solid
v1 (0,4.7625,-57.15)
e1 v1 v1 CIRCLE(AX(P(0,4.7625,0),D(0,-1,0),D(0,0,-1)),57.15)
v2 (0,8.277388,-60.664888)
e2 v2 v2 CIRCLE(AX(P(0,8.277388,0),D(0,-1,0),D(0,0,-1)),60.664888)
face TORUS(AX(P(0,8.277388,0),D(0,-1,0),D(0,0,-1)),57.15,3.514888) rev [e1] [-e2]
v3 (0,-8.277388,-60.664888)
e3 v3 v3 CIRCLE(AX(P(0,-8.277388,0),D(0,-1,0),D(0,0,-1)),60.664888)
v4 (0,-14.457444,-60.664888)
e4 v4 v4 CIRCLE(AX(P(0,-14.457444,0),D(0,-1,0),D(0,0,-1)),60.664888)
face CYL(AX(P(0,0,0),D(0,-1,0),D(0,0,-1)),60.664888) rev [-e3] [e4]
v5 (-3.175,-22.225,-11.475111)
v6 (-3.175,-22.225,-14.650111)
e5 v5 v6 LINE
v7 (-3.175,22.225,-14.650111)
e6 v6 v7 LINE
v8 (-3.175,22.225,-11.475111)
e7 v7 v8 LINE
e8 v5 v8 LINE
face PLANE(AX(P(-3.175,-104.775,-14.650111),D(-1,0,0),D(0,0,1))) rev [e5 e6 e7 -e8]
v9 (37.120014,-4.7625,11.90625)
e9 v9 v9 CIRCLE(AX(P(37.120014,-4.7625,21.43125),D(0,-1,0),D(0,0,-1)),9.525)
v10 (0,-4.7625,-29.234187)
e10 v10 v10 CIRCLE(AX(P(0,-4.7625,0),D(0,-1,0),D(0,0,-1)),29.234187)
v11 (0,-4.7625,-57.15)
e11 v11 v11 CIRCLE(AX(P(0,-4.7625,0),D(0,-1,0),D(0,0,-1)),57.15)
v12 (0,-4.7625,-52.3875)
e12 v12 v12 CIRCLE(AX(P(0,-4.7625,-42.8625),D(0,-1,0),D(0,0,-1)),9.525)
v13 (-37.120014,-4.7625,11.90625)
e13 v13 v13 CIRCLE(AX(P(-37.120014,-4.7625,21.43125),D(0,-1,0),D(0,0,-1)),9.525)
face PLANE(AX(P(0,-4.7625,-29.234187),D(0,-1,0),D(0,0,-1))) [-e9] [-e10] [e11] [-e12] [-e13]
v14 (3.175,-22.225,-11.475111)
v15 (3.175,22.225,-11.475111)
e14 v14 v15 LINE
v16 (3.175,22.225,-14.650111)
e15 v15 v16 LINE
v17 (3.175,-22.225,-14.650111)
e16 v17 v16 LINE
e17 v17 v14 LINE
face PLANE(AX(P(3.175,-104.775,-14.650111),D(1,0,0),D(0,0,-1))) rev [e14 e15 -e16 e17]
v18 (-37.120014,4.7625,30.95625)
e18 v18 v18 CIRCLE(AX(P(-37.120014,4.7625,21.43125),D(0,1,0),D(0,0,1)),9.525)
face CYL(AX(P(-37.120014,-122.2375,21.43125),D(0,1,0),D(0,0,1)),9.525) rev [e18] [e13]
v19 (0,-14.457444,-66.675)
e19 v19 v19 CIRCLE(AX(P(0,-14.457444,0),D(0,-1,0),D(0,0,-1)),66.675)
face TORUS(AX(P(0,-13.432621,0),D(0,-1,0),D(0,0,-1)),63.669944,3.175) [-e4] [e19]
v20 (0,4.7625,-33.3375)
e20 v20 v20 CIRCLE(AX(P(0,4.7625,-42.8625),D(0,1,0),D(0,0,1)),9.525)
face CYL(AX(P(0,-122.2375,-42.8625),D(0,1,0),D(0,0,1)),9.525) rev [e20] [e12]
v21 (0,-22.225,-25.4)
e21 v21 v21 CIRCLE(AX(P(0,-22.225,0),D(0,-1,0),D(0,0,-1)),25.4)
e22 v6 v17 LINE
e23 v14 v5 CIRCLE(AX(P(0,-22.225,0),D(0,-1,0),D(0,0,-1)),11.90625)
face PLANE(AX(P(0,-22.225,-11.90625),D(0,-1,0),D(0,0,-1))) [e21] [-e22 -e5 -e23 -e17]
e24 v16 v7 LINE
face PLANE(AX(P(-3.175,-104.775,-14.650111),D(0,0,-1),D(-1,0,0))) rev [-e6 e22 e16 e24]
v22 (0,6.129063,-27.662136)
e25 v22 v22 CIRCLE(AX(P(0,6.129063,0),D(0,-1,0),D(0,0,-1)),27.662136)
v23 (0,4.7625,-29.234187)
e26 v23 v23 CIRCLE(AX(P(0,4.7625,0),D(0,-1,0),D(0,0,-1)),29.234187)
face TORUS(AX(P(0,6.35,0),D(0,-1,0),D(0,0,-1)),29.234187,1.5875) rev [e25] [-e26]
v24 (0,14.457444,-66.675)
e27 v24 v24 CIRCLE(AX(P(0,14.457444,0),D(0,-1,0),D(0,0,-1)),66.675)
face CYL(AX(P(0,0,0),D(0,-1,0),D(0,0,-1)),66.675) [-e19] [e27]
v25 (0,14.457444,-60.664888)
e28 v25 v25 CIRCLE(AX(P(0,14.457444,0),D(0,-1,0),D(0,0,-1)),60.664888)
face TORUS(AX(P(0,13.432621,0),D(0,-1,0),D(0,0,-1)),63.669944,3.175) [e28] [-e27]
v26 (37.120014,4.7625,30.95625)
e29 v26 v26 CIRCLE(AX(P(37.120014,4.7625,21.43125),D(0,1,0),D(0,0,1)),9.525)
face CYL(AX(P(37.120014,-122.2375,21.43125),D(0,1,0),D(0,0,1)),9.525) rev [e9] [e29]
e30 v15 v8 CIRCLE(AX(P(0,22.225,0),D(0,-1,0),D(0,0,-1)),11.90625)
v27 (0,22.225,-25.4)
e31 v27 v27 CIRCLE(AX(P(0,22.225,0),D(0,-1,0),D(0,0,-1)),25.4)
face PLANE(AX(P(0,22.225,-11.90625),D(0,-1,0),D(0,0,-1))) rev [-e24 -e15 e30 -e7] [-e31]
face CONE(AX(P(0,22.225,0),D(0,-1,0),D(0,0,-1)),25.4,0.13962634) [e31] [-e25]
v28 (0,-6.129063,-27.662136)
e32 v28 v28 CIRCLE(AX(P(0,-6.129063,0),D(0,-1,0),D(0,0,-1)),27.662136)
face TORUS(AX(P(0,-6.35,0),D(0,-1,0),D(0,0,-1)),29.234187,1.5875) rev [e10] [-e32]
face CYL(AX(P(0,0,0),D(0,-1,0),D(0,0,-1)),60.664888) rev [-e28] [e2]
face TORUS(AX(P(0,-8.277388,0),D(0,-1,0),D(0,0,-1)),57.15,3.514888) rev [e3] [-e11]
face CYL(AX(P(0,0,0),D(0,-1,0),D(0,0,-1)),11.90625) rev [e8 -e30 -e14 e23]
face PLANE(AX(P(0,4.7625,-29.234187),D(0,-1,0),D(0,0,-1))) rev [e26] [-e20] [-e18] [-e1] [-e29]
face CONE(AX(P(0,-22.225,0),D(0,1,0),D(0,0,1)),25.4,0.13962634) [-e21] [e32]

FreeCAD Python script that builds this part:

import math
import FreeCAD as App
import Part
import Sketcher
from FreeCAD import Vector
Q = App.Units.Quantity

doc = App.newDocument("Part")
body = doc.addObject("PartDesign::Body", "Body")

# Sketch on YZ plane
sketch1 = doc.addObject("Sketcher::SketchObject", "Sketch")
body.addObject(sketch1)
sketch1.AttachmentSupport = (doc.YZ_Plane, [""])
sketch1.MapMode = "FlatFace"
sketch1.addGeometry(Part.LineSegment(Vector(22.225, -11.90625, 0), Vector(-22.225, -11.90625, 0)), False)
sketch1.addGeometry(Part.LineSegment(Vector(-22.225, -11.90625, 0), Vector(-22.225, -25.4, 0)), False)
sketch1.addGeometry(Part.LineSegment(Vector(-22.225, -25.4, 0), Vector(-6.129063, -27.662136, 0)), False)
sketch1.addGeometry(Part.ArcOfCircle(Part.Circle(Vector(-6.35, -29.234187, 0), Vector(0, 0, 1), 1.5875), math.radians(0), math.radians(82)), False)
sketch1.addGeometry(Part.LineSegment(Vector(-4.7625, -29.234187, 0), Vector(-4.7625, -57.15, 0)), False)
sketch1.addGeometry(Part.ArcOfCircle(Part.Circle(Vector(-8.277388, -57.15, 0), Vector(0, 0, 1), 3.514888), math.radians(-90), math.radians(0)), False)
sketch1.addGeometry(Part.LineSegment(Vector(-8.277388, -60.664888, 0), Vector(-14.457444, -60.664888, 0)), False)
sketch1.addGeometry(Part.ArcOfCircle(Part.Circle(Vector(-13.432621, -63.669944, 0), Vector(0, 0, 1), 3.175), math.radians(108.831068), math.radians(251.168932)), False)
sketch1.addGeometry(Part.LineSegment(Vector(-14.457444, -66.675, 0), Vector(14.457444, -66.675, 0)), False)
sketch1.addGeometry(Part.ArcOfCircle(Part.Circle(Vector(13.432621, -63.669944, 0), Vector(0, 0, 1), 3.175), math.radians(-71.168932), math.radians(71.168932)), False)
sketch1.addGeometry(Part.LineSegment(Vector(14.457444, -60.664888, 0), Vector(8.277388, -60.664888, 0)), False)
sketch1.addGeometry(Part.ArcOfCircle(Part.Circle(Vector(8.277388, -57.15, 0), Vector(0, 0, 1), 3.514888), math.radians(180), math.radians(270)), False)
sketch1.addGeometry(Part.LineSegment(Vector(4.7625, -57.15, 0), Vector(4.7625, -29.234187, 0)), False)
sketch1.addGeometry(Part.ArcOfCircle(Part.Circle(Vector(6.35, -29.234187, 0), Vector(0, 0, 1), 1.5875), math.radians(98), math.radians(180)), False)
sketch1.addGeometry(Part.LineSegment(Vector(6.129063, -27.662136, 0), Vector(22.225, -25.4, 0)), False)
sketch1.addGeometry(Part.LineSegment(Vector(22.225, -25.4, 0), Vector(22.225, -11.90625, 0)), False)
sketch1.addConstraint(Sketcher.Constraint("Coincident", 0, 2, 1, 1))
sketch1.addConstraint(Sketcher.Constraint("Coincident", 1, 2, 2, 1))
sketch1.addConstraint(Sketcher.Constraint("Tangent", 2, 2, 3, 2))
sketch1.addConstraint(Sketcher.Constraint("Tangent", 3, 1, 4, 1))
sketch1.addConstraint(Sketcher.Constraint("Tangent", 4, 2, 5, 2))
sketch1.addConstraint(Sketcher.Constraint("Tangent", 5, 1, 6, 1))
sketch1.addConstraint(Sketcher.Constraint("Coincident", 6, 2, 7, 1))
sketch1.addConstraint(Sketcher.Constraint("Coincident", 7, 2, 8, 1))
sketch1.addConstraint(Sketcher.Constraint("Coincident", 8, 2, 9, 1))
sketch1.addConstraint(Sketcher.Constraint("Coincident", 9, 2, 10, 1))
sketch1.addConstraint(Sketcher.Constraint("Tangent", 10, 2, 11, 2))
sketch1.addConstraint(Sketcher.Constraint("Tangent", 11, 1, 12, 1))
sketch1.addConstraint(Sketcher.Constraint("Tangent", 12, 2, 13, 2))
sketch1.addConstraint(Sketcher.Constraint("Tangent", 13, 1, 14, 1))
sketch1.addConstraint(Sketcher.Constraint("Coincident", 14, 2, 15, 1))
sketch1.addConstraint(Sketcher.Constraint("Coincident", 15, 2, 0, 1))
sketch1.addConstraint(Sketcher.Constraint("Horizontal", 0))
sketch1.addConstraint(Sketcher.Constraint("Vertical", 1))
sketch1.addConstraint(Sketcher.Constraint("Vertical", 4))
sketch1.addConstraint(Sketcher.Constraint("Horizontal", 6))
sketch1.addConstraint(Sketcher.Constraint("Horizontal", 8))
sketch1.addConstraint(Sketcher.Constraint("Horizontal", 10))
sketch1.addConstraint(Sketcher.Constraint("Vertical", 12))
sketch1.addConstraint(Sketcher.Constraint("Vertical", 15))
sketch1.addConstraint(Sketcher.Constraint("Equal", 7, 9))
sketch1.addConstraint(Sketcher.Constraint("Equal", 5, 11))
sketch1.addConstraint(Sketcher.Constraint("Equal", 3, 13))
sketch1.addConstraint(Sketcher.Constraint("Symmetric", 7, 3, 9, 3, -2))
sketch1.addConstraint(Sketcher.Constraint("Symmetric", 5, 3, 11, 3, -2))
sketch1.addConstraint(Sketcher.Constraint("Symmetric", 2, 2, 13, 1, -2))
sketch1.addConstraint(Sketcher.Constraint("Horizontal", 1, 2, 14, 2))
sketch1.addConstraint(Sketcher.Constraint("Vertical", 6, 2, 7, 2))
sketch1.addConstraint(Sketcher.Constraint("DistanceY", 1, 2, -1, 1, Q("1 in")))
sketch1.addConstraint(Sketcher.Constraint("Angle", 2, Q("-8 deg")))
sketch1.addConstraint(Sketcher.Constraint("Radius", 3, Q("0.0625 in")))
sketch1.addConstraint(Sketcher.Constraint("Radius", 7, Q("0.125 in")))
sketch1.addConstraint(Sketcher.Constraint("DistanceX", 0, 2, 0, 1, Q("1.75 in")))
sketch1.addConstraint(Sketcher.Constraint("DistanceX", 3, 3, 13, 3, Q("0.5 in")))
sketch1.addConstraint(Sketcher.Constraint("DistanceY", 1, 2, 1, 1, Q("0.53125 in")))
sketch1.addConstraint(Sketcher.Constraint("DistanceY", 5, 3, -1, 1, Q("2.25 in")))
sketch1.addConstraint(Sketcher.Constraint("DistanceY", 7, 2, -1, 1, Q("2.625 in")))
sketch1.addConstraint(Sketcher.Constraint("Radius", 5, Q("3.514888 mm")))
sketch1.addConstraint(Sketcher.Constraint("DistanceX", 6, 2, 6, 1, Q("6.180056 mm")))
revolution = doc.addObject("PartDesign::Revolution", "Revolution")
body.addObject(revolution)
revolution.Profile = sketch1
revolution.ReferenceAxis = (sketch1, ["H_Axis"])
revolution.Angle = 360

# Sketch on XZ plane
sketch2 = doc.addObject("Sketcher::SketchObject", "Sketch001")
body.addObject(sketch2)
sketch2.AttachmentSupport = (doc.XZ_Plane, [""])
sketch2.MapMode = "FlatFace"
sketch2.AttachmentOffset = App.Placement(Vector(0, 0, -0.875 * 25.4), App.Rotation())
sketch2.addGeometry(Part.LineSegment(Vector(3.175, -14.650111, 0), Vector(-3.175, -14.650111, 0)), False)
sketch2.addGeometry(Part.LineSegment(Vector(-3.175, -14.650111, 0), Vector(-3.175, -11.475111, 0)), False)
sketch2.addGeometry(Part.ArcOfCircle(Part.Circle(Vector(0, 0, 0), Vector(0, 0, 1), 11.90625), math.radians(-105.46601), math.radians(-74.53399)), False)
sketch2.addGeometry(Part.LineSegment(Vector(3.175, -11.475111, 0), Vector(3.175, -14.650111, 0)), False)
sketch2.addConstraint(Sketcher.Constraint("Coincident", 0, 2, 1, 1))
sketch2.addConstraint(Sketcher.Constraint("Coincident", 1, 2, 2, 1))
sketch2.addConstraint(Sketcher.Constraint("Coincident", 2, 2, 3, 1))
sketch2.addConstraint(Sketcher.Constraint("Coincident", 3, 2, 0, 1))
sketch2.addConstraint(Sketcher.Constraint("Horizontal", 0))
sketch2.addConstraint(Sketcher.Constraint("Vertical", 1))
sketch2.addConstraint(Sketcher.Constraint("Vertical", 3))
sketch2.addConstraint(Sketcher.Constraint("Coincident", 2, 3, -1, 1))
sketch2.addConstraint(Sketcher.Constraint("Horizontal", 1, 2, 2, 2))
sketch2.addConstraint(Sketcher.Constraint("Radius", 2, Q("0.46875 in")))
sketch2.addConstraint(Sketcher.Constraint("DistanceX", 0, 2, 0, 1, Q("0.25 in")))
sketch2.addConstraint(Sketcher.Constraint("DistanceY", 1, 1, 1, 2, Q("0.125 in")))
pocket1 = doc.addObject("PartDesign::Pocket", "Pocket")
body.addObject(pocket1)
pocket1.Profile = sketch2
pocket1.Length = Q("5 in")
pocket1.Reversed = True

# Sketch on XZ plane
sketch3 = doc.addObject("Sketcher::SketchObject", "Sketch002")
body.addObject(sketch3)
sketch3.AttachmentSupport = (doc.XZ_Plane, [""])
sketch3.MapMode = "FlatFace"
sketch3.AttachmentOffset = App.Placement(Vector(0, 0, -0.1875 * 25.4), App.Rotation())
sketch3.addGeometry(Part.Circle(Vector(0, -42.8625, 0), Vector(0, 0, 1), 9.525), False)
sketch3.addGeometry(Part.Circle(Vector(-37.120014, 21.43125, 0), Vector(0, 0, 1), 9.525), False)
sketch3.addGeometry(Part.Circle(Vector(37.120014, 21.43125, 0), Vector(0, 0, 1), 9.525), False)
sketch3.addConstraint(Sketcher.Constraint("Equal", 0, 1))
sketch3.addConstraint(Sketcher.Constraint("Equal", 1, 2))
sketch3.addConstraint(Sketcher.Constraint("Symmetric", 1, 3, 2, 3, -2))
sketch3.addConstraint(Sketcher.Constraint("PointOnObject", 0, 3, -2))
sketch3.addConstraint(Sketcher.Constraint("Diameter", 0, Q("0.75 in")))
sketch3.addConstraint(Sketcher.Constraint("DistanceY", 0, 3, -1, 1, Q("1.6875 in")))
sketch3.addConstraint(Sketcher.Constraint("DistanceY", -1, 1, 1, 3, Q("0.84375 in")))
sketch3.addConstraint(Sketcher.Constraint("DistanceX", 1, 3, -1, 1, Q("37.120014 mm")))
pocket2 = doc.addObject("PartDesign::Pocket", "Pocket001")
body.addObject(pocket2)
pocket2.Profile = sketch3
pocket2.Length = Q("5 in")
pocket2.Reversed = True

doc.recompute()
